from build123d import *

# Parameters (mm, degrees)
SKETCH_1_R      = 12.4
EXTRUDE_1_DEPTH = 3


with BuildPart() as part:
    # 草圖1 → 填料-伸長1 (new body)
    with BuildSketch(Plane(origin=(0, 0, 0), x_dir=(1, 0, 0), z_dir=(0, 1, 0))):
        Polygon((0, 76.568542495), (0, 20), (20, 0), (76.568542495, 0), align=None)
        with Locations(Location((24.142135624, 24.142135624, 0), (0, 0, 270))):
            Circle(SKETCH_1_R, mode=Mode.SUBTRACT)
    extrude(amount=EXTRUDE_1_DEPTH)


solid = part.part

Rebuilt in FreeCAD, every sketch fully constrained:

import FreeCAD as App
import Part
import Sketcher
Q = App.Units.Quantity


def add_polygon(sketch, points):
    """Adds a closed chain of lines whose ends are joined by coincident constraints."""
    first, n = sketch.GeometryCount, len(points)
    for a, b in zip(points, points[1:] + points[:1]):
        sketch.addGeometry(Part.LineSegment(App.Vector(*a, 0), App.Vector(*b, 0)), False)
    for i in range(n):
        sketch.addConstraint(Sketcher.Constraint("Coincident", first + i, 2, first + (i + 1) % n, 1))

doc = App.newDocument("Part")
body = doc.addObject("PartDesign::Body", "Body")

sketch1 = body.newObject("Sketcher::SketchObject", "Sketch")
sketch1.AttachmentSupport = (doc.getObject("XZ_Plane"), [""])
sketch1.MapMode = "FlatFace"
add_polygon(sketch1, [(0, -77), (0, -20), (20, 0), (77, 0)])
sketch1.addGeometry(Part.Circle(App.Vector(24, -24, 0), App.Vector(0, 0, 1), 12), False)
sketch1.addConstraint([
    Sketcher.Constraint("Vertical", 0),
    Sketcher.Constraint("Horizontal", 2),
    Sketcher.Constraint("PointOnObject", 0, 2, -2),
    Sketcher.Constraint("PointOnObject", 1, 2, -1),
    Sketcher.Constraint("Parallel", 1, 3),
    Sketcher.Constraint("Equal", 2, 0),
    Sketcher.Constraint("Diameter", 4, Q("24.8 mm")),
    Sketcher.Constraint("DistanceY", 0, 2, -1, 1, Q("20 mm")),
    Sketcher.Constraint("Distance", 3, Q("108.284271 mm")),
    Sketcher.Constraint("DistanceX", -1, 1, 4, 3, Q("24.142136 mm")),
    Sketcher.Constraint("DistanceY", 4, 3, -1, 1, Q("24.142136 mm")),
])
pad1 = body.newObject("PartDesign::Pad", "Pad")
pad1.Profile = sketch1
pad1.Length = 3
pad1.Reversed = True

doc.recompute()
